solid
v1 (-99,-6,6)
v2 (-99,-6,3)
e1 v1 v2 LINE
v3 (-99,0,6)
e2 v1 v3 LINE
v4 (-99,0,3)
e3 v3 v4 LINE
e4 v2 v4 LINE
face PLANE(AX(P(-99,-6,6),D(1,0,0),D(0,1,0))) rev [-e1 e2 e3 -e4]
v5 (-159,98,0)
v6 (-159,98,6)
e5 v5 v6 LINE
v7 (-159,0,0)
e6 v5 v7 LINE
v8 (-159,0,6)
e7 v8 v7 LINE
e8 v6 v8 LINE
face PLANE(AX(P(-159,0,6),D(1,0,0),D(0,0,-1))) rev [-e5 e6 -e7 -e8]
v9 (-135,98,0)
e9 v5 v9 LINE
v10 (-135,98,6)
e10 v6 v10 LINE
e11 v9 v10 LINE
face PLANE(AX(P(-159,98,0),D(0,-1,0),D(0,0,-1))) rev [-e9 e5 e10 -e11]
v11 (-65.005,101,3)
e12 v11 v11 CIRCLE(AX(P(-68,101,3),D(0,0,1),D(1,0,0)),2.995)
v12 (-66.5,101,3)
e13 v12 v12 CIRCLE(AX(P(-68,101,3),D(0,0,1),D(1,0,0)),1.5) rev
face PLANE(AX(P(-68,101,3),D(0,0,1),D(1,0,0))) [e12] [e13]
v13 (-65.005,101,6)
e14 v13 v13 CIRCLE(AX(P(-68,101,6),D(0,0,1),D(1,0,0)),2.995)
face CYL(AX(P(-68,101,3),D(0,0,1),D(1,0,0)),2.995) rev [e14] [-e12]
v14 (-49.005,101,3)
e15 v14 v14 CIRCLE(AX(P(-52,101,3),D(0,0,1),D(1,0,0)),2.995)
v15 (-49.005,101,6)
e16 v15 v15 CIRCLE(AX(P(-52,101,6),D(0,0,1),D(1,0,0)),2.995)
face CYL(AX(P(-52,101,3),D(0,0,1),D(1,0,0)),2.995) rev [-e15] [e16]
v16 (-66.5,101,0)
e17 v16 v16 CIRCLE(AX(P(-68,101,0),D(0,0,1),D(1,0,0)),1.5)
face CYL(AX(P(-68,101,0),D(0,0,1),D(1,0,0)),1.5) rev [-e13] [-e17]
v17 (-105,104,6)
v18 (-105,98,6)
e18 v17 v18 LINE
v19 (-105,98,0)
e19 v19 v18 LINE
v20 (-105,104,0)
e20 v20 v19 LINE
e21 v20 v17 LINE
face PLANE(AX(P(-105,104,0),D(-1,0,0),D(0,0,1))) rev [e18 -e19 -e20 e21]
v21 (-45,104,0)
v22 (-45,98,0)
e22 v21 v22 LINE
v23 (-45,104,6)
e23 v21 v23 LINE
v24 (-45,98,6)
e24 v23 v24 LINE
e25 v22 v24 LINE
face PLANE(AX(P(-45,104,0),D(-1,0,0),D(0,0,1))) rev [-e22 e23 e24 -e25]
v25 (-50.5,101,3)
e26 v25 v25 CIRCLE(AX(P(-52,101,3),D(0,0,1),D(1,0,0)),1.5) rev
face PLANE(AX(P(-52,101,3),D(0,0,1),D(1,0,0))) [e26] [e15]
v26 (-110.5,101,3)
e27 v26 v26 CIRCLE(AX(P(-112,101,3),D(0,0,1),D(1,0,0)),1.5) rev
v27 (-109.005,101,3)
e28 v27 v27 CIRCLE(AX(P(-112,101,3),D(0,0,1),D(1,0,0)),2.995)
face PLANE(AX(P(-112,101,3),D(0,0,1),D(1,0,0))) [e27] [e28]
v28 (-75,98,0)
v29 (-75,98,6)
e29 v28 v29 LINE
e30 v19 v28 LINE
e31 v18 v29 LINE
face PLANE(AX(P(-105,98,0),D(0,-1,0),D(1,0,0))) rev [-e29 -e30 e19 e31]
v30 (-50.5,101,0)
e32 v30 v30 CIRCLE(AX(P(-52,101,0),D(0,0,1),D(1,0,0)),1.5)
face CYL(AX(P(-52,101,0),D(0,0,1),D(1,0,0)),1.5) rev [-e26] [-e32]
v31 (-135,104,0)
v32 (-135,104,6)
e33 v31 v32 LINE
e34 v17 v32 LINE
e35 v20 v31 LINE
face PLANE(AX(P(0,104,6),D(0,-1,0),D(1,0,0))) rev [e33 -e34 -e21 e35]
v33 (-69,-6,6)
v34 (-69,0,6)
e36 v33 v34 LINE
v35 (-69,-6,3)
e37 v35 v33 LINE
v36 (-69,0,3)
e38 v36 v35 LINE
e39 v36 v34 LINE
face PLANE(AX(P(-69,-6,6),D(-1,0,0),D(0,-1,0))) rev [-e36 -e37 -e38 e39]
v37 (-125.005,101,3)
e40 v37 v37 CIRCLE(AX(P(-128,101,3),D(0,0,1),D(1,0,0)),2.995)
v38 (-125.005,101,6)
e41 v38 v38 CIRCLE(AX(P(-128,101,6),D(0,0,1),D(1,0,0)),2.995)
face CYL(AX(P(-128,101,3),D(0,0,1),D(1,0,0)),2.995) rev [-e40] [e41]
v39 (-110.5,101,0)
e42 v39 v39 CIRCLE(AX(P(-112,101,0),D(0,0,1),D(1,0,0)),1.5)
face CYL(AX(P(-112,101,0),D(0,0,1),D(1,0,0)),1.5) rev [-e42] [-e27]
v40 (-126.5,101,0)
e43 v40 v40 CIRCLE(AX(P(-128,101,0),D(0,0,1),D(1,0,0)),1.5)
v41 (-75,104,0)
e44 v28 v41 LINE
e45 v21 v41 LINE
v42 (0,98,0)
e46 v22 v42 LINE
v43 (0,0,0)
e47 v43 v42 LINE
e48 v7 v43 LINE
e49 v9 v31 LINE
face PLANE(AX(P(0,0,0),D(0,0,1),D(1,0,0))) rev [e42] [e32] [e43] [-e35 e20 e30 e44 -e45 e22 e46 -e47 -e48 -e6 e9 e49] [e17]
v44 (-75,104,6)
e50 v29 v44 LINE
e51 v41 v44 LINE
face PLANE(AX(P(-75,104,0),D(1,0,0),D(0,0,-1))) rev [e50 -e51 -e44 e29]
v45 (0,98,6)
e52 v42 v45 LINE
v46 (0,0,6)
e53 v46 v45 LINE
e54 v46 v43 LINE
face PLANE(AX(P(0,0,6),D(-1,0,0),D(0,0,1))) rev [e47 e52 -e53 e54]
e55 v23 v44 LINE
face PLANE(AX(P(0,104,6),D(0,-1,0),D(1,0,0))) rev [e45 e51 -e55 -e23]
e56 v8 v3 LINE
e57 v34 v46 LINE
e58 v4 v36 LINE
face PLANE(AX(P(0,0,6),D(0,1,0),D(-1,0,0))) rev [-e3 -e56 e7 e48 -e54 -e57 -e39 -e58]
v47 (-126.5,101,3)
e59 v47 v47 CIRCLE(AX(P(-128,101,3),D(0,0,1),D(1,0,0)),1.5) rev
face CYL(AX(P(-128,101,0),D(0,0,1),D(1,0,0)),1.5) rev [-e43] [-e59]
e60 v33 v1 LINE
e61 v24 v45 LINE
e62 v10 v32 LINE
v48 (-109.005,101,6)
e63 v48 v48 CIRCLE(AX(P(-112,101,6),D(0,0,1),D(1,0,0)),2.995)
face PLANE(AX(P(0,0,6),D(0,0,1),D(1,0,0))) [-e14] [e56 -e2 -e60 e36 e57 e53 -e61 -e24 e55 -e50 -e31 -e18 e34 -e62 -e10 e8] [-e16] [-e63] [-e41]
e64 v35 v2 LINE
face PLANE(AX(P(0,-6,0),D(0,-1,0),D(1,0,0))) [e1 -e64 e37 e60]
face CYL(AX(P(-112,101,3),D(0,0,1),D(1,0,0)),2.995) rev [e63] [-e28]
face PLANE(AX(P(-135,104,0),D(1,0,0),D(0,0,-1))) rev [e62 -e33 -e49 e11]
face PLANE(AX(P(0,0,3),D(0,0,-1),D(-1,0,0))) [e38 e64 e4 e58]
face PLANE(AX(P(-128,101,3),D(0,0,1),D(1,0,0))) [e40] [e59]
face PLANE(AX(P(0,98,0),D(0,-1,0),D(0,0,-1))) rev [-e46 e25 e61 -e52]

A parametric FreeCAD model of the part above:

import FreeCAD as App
import Part
import Sketcher


def add_polygon(sketch, points):
    """Adds a closed chain of lines whose ends are joined by coincident constraints."""
    first, n = sketch.GeometryCount, len(points)
    for a, b in zip(points, points[1:] + points[:1]):
        sketch.addGeometry(Part.LineSegment(App.Vector(*a, 0), App.Vector(*b, 0)), False)
    for i in range(n):
        sketch.addConstraint(Sketcher.Constraint("Coincident", first + i, 2, first + (i + 1) % n, 1))

doc = App.newDocument("Part")
params = doc.addObject("Spreadsheet::Sheet", "Params")
for row, (alias, value) in enumerate([
    ("sketch1_width", "159 mm"),
    ("sketch1_height", "104 mm"),
    ("pad1_length", "6 mm"),
    ("sketch2_width", "24 mm"),
    ("sketch2_width2", "45 mm"),
    ("sketch2_width3", "30 mm"),
    ("sketch2_height", "6 mm"),
    ("sketch3_diameter", "3 mm"),
    ("sketch4_diameter", "5.99 mm"),
    ("pocket3_length", "3 mm"),
    ("sketch5_width", "30 mm"),
    ("sketch5_height", "6 mm"),
    ("pad2_length", "6 mm"),
    ("sketch6_width", "30 mm"),
    ("sketch6_height", "6 mm"),
    ("pocket4_length", "3 mm"),
], start=1):
    params.set(f"A{row}", alias)
    params.set(f"B{row}", "=" + value)
    params.setAlias(f"B{row}", alias)

body = doc.addObject("PartDesign::Body", "Body")

# Sketch on XY plane
sketch1 = doc.addObject("Sketcher::SketchObject", "Sketch")
body.addObject(sketch1)
sketch1.AttachmentSupport = (doc.XY_Plane, [""])
sketch1.MapMode = "FlatFace"
add_polygon(sketch1, [(-159, 104), (-159, 0), (0, 0), (0, 104)])  # lines 0-3
sketch1.addConstraint([
    Sketcher.Constraint("Vertical", 0),
    Sketcher.Constraint("Horizontal", 1),
    Sketcher.Constraint("Vertical", 2),
    Sketcher.Constraint("Horizontal", 3),
    Sketcher.Constraint("Coincident", 1, 2, -1, 1),
    Sketcher.Constraint("DistanceX", 1, 1, 1, 2, 159.0),
    Sketcher.Constraint("DistanceY", 0, 2, 0, 1, 104.0),
])
sketch1.setExpression("Constraints[9]", "Params.sketch1_width")
sketch1.setExpression("Constraints[10]", "Params.sketch1_height")
pad1 = doc.addObject("PartDesign::Pad", "Pad")
body.addObject(pad1)
pad1.Profile = sketch1
pad1.setExpression("Length", "Params.pad1_length")

# Sketch on XY plane
sketch2 = doc.addObject("Sketcher::SketchObject", "Sketch001")
body.addObject(sketch2)
sketch2.AttachmentSupport = (doc.XY_Plane, [""])
sketch2.MapMode = "FlatFace"
sketch2.AttachmentOffset = App.Placement(App.Vector(0, 0, 6), App.Rotation())
add_polygon(sketch2, [(-159, 104), (-159, 98), (-135, 98), (-135, 104)])  # lines 0-3
add_polygon(sketch2, [(-45, 104), (-45, 98), (0, 98), (0, 104)])  # lines 4-7
add_polygon(sketch2, [(-105, 104), (-105, 98), (-75, 98), (-75, 104)])  # lines 8-11
sketch2.addConstraint([
    Sketcher.Constraint("Vertical", 0),
    Sketcher.Constraint("Horizontal", 1),
    Sketcher.Constraint("Vertical", 2),
    Sketcher.Constraint("Horizontal", 3),
    Sketcher.Constraint("Vertical", 4),
    Sketcher.Constraint("Horizontal", 5),
    Sketcher.Constraint("Vertical", 6),
    Sketcher.Constraint("Horizontal", 7),
    Sketcher.Constraint("Vertical", 8),
    Sketcher.Constraint("Horizontal", 9),
    Sketcher.Constraint("Vertical", 10),
    Sketcher.Constraint("Horizontal", 11),
    Sketcher.Constraint("PointOnObject", 5, 2, -2),
    Sketcher.Constraint("Horizontal", 1, 2, 4, 2),
    Sketcher.Constraint("Horizontal", 3, 2, 6, 2),
    Sketcher.Constraint("Horizontal", 5, 2, 8, 2),
    Sketcher.Constraint("Horizontal", 7, 2, 10, 2),
    Sketcher.Constraint("DistanceX", 1, 1, 1, 2, 24.0),
    Sketcher.Constraint("DistanceX", 5, 1, 5, 2, 45.0),
    Sketcher.Constraint("DistanceX", 9, 1, 9, 2, 30.0),
    Sketcher.Constraint("DistanceY", 0, 2, 0, 1, 6.0),
    Sketcher.Constraint("DistanceX", 0, 2, -1, 1, 159.0),
    Sketcher.Constraint("DistanceY", -1, 1, 0, 2, 98.0),
    Sketcher.Constraint("DistanceX", 8, 2, -1, 1, 105.0),
])
sketch2.setExpression("Constraints[29]", "Params.sketch2_width")
sketch2.setExpression("Constraints[30]", "Params.sketch2_width2")
sketch2.setExpression("Constraints[31]", "Params.sketch2_width3")
sketch2.setExpression("Constraints[32]", "Params.sketch2_height")
pocket1 = doc.addObject("PartDesign::Pocket", "Pocket")
body.addObject(pocket1)
pocket1.Profile = sketch2
pocket1.Type = "ThroughAll"

# Sketch on XY plane
sketch3 = doc.addObject("Sketcher::SketchObject", "Sketch002")
body.addObject(sketch3)
sketch3.AttachmentSupport = (doc.XY_Plane, [""])
sketch3.MapMode = "FlatFace"
sketch3.AttachmentOffset = App.Placement(App.Vector(0, 0, 6), App.Rotation())
sketch3.addGeometry([
    Part.Circle(App.Vector(-128, 101, 0), App.Vector(0, 0, 1), 1.5),
    Part.Circle(App.Vector(-112, 101, 0), App.Vector(0, 0, 1), 1.5),
    Part.Circle(App.Vector(-68, 101, 0), App.Vector(0, 0, 1), 1.5),
    Part.Circle(App.Vector(-52, 101, 0), App.Vector(0, 0, 1), 1.5),
], False)
sketch3.addConstraint([
    Sketcher.Constraint("Equal", 0, 1),
    Sketcher.Constraint("Equal", 1, 2),
    Sketcher.Constraint("Equal", 2, 3),
    Sketcher.Constraint("Horizontal", 0, 3, 1, 3),
    Sketcher.Constraint("Horizontal", 1, 3, 2, 3),
    Sketcher.Constraint("Horizontal", 2, 3, 3, 3),
    Sketcher.Constraint("Diameter", 0, 3.0),
    Sketcher.Constraint("DistanceX", 0, 3, -1, 1, 128.0),
    Sketcher.Constraint("DistanceY", -1, 1, 0, 3, 101.0),
    Sketcher.Constraint("DistanceX", 1, 3, -1, 1, 112.0),
    Sketcher.Constraint("DistanceX", 2, 3, -1, 1, 68.0),
    Sketcher.Constraint("DistanceX", 3, 3, -1, 1, 52.0),
])
sketch3.setExpression("Constraints[6]", "Params.sketch3_diameter")
pocket2 = doc.addObject("PartDesign::Pocket", "Pocket001")
body.addObject(pocket2)
pocket2.Profile = sketch3
pocket2.Type = "ThroughAll"

# Sketch on XY plane
sketch4 = doc.addObject("Sketcher::SketchObject", "Sketch003")
body.addObject(sketch4)
sketch4.AttachmentSupport = (doc.XY_Plane, [""])
sketch4.MapMode = "FlatFace"
sketch4.AttachmentOffset = App.Placement(App.Vector(0, 0, 6), App.Rotation())
sketch4.addGeometry([
    Part.Circle(App.Vector(-128, 101, 0), App.Vector(0, 0, 1), 3),
    Part.Circle(App.Vector(-112, 101, 0), App.Vector(0, 0, 1), 3),
    Part.Circle(App.Vector(-68, 101, 0), App.Vector(0, 0, 1), 3),
    Part.Circle(App.Vector(-52, 101, 0), App.Vector(0, 0, 1), 3),
], False)
sketch4.addConstraint([
    Sketcher.Constraint("Equal", 0, 1),
    Sketcher.Constraint("Equal", 1, 2),
    Sketcher.Constraint("Equal", 2, 3),
    Sketcher.Constraint("Horizontal", 0, 3, 1, 3),
    Sketcher.Constraint("Horizontal", 1, 3, 2, 3),
    Sketcher.Constraint("Horizontal", 2, 3, 3, 3),
    Sketcher.Constraint("Diameter", 0, 5.99),
    Sketcher.Constraint("DistanceX", 0, 3, -1, 1, 128.0),
    Sketcher.Constraint("DistanceY", -1, 1, 0, 3, 101.0),
    Sketcher.Constraint("DistanceX", 1, 3, -1, 1, 112.0),
    Sketcher.Constraint("DistanceX", 2, 3, -1, 1, 68.0),
    Sketcher.Constraint("DistanceX", 3, 3, -1, 1, 52.0),
])
sketch4.setExpression("Constraints[6]", "Params.sketch4_diameter")
pocket3 = doc.addObject("PartDesign::Pocket", "Pocket002")
body.addObject(pocket3)
pocket3.Profile = sketch4
pocket3.setExpression("Length", "Params.pocket3_length")

# Sketch on XZ plane
sketch5 = doc.addObject("Sketcher::SketchObject", "Sketch004")
body.addObject(sketch5)
sketch5.AttachmentSupport = (doc.XZ_Plane, [""])
sketch5.MapMode = "FlatFace"
add_polygon(sketch5, [(-99, 6), (-99, 0), (-69, 0), (-69, 6)])  # lines 0-3
sketch5.addConstraint([
    Sketcher.Constraint("Vertical", 0),
    Sketcher.Constraint("Horizontal", 1),
    Sketcher.Constraint("Vertical", 2),
    Sketcher.Constraint("Horizontal", 3),
    Sketcher.Constraint("PointOnObject", 0, 2, -1),
    Sketcher.Constraint("DistanceX", 1, 1, 1, 2, 30.0),
    Sketcher.Constraint("DistanceY", 0, 2, 0, 1, 6.0),
    Sketcher.Constraint("DistanceX", 0, 2, -1, 1, 99.0),
])
sketch5.setExpression("Constraints[9]", "Params.sketch5_width")
sketch5.setExpression("Constraints[10]", "Params.sketch5_height")
pad2 = doc.addObject("PartDesign::Pad", "Pad001")
body.addObject(pad2)
pad2.Profile = sketch5
pad2.setExpression("Length", "Params.pad2_length")

# Sketch on XY plane
sketch6 = doc.addObject("Sketcher::SketchObject", "Sketch005")
body.addObject(sketch6)
sketch6.AttachmentSupport = (doc.XY_Plane, [""])
sketch6.MapMode = "FlatFace"
add_polygon(sketch6, [(-69, 0), (-69, -6), (-99, -6), (-99, 0)])  # lines 0-3
sketch6.addConstraint([
    Sketcher.Constraint("Vertical", 0),
    Sketcher.Constraint("Horizontal", 1),
    Sketcher.Constraint("Vertical", 2),
    Sketcher.Constraint("Horizontal", 3),
    Sketcher.Constraint("PointOnObject", 2, 2, -1),
    Sketcher.Constraint("DistanceX", 1, 2, 1, 1, 30.0),
    Sketcher.Constraint("DistanceY", 0, 2, 0, 1, 6.0),
    Sketcher.Constraint("DistanceX", 0, 2, -1, 1, 69.0),
])
sketch6.setExpression("Constraints[9]", "Params.sketch6_width")
sketch6.setExpression("Constraints[10]", "Params.sketch6_height")
pocket4 = doc.addObject("PartDesign::Pocket", "Pocket003")
body.addObject(pocket4)
pocket4.Profile = sketch6
pocket4.setExpression("Length", "Params.pocket4_length")
pocket4.Reversed = True

doc.recompute()
